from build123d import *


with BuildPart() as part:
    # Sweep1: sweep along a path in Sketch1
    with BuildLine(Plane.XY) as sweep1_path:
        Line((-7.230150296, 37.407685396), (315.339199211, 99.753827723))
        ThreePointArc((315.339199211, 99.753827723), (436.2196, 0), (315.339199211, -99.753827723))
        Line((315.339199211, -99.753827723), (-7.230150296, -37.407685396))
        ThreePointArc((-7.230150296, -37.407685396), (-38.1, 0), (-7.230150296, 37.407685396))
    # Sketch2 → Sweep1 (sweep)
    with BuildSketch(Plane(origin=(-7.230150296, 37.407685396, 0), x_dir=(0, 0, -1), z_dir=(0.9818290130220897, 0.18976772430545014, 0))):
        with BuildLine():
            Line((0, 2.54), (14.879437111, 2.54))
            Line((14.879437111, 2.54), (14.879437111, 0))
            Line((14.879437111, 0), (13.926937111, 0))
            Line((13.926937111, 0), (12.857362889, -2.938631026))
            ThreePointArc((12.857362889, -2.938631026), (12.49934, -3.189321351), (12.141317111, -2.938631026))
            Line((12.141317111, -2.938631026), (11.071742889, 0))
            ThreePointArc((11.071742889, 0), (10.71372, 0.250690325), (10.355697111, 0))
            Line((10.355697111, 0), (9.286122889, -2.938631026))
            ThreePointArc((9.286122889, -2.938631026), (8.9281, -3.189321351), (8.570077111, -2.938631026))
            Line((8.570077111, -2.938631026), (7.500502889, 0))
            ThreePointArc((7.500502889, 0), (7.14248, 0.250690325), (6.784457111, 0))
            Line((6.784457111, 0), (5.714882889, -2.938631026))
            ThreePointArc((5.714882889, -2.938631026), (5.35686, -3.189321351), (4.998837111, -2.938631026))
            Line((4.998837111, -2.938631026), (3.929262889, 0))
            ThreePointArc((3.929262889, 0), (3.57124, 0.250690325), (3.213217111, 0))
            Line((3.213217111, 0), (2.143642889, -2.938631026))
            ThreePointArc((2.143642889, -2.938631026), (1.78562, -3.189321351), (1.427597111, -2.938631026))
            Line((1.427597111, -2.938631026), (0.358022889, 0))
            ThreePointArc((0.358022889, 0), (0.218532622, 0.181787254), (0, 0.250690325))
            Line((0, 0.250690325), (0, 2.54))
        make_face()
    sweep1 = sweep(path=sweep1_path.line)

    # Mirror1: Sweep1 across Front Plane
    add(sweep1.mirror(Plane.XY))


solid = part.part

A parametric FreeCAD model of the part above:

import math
import FreeCAD as App
import Part
import Sketcher
from FreeCAD import Vector
Q = App.Units.Quantity

doc = App.newDocument("Part")
body = doc.addObject("PartDesign::Body", "Body")

# Sketch on an angled plane
sketch1 = body.newObject("Sketcher::SketchObject", "Sketch")
sketch1.Placement = App.Placement(Vector(-7.23015, 37.407685, 0), App.Rotation(Vector(0, 0, -1), Vector(-0.189767724, 0.981829013, 0), Vector(0.981829013, 0.189767724, 0), "ZXY"))
sketch1.addGeometry(Part.LineSegment(Vector(14.879437, 2.54, 0), Vector(0, 2.54, 0)), False)
sketch1.addGeometry(Part.LineSegment(Vector(0, 2.54, 0), Vector(0, 0.25069, 0)), False)
sketch1.addGeometry(Part.ArcOfCircle(Part.Circle(Vector(0, -0.13031, 0), Vector(0, 0, 1), 0.381), math.radians(20), math.radians(90)), False)
sketch1.addGeometry(Part.LineSegment(Vector(0.358023, 0, 0), Vector(1.427597, -2.938631, 0)), False)
sketch1.addGeometry(Part.ArcOfCircle(Part.Circle(Vector(1.78562, -2.808321, 0), Vector(0, 0, 1), 0.381), math.radians(-160), math.radians(-20)), False)
sketch1.addGeometry(Part.LineSegment(Vector(2.143643, -2.938631, 0), Vector(3.213217, 0, 0)), False)
sketch1.addGeometry(Part.ArcOfCircle(Part.Circle(Vector(3.57124, -0.13031, 0), Vector(0, 0, 1), 0.381), math.radians(20), math.radians(160)), False)
sketch1.addGeometry(Part.LineSegment(Vector(3.929263, 0, 0), Vector(4.998837, -2.938631, 0)), False)
sketch1.addGeometry(Part.ArcOfCircle(Part.Circle(Vector(5.35686, -2.808321, 0), Vector(0, 0, 1), 0.381), math.radians(-160), math.radians(-20)), False)
sketch1.addGeometry(Part.LineSegment(Vector(5.714883, -2.938631, 0), Vector(6.784457, 0, 0)), False)
sketch1.addGeometry(Part.ArcOfCircle(Part.Circle(Vector(7.14248, -0.13031, 0), Vector(0, 0, 1), 0.381), math.radians(20), math.radians(160)), False)
sketch1.addGeometry(Part.LineSegment(Vector(7.500503, 0, 0), Vector(8.570077, -2.938631, 0)), False)
sketch1.addGeometry(Part.ArcOfCircle(Part.Circle(Vector(8.9281, -2.808321, 0), Vector(0, 0, 1), 0.381), math.radians(-160), math.radians(-20)), False)
sketch1.addGeometry(Part.LineSegment(Vector(9.286123, -2.938631, 0), Vector(10.355697, 0, 0)), False)
sketch1.addGeometry(Part.ArcOfCircle(Part.Circle(Vector(10.71372, -0.13031, 0), Vector(0, 0, 1), 0.381), math.radians(20), math.radians(160)), False)
sketch1.addGeometry(Part.LineSegment(Vector(11.071743, 0, 0), Vector(12.141317, -2.938631, 0)), False)
sketch1.addGeometry(Part.ArcOfCircle(Part.Circle(Vector(12.49934, -2.808321, 0), Vector(0, 0, 1), 0.381), math.radians(-160), math.radians(-20)), False)
sketch1.addGeometry(Part.LineSegment(Vector(12.857363, -2.938631, 0), Vector(13.926937, 0, 0)), False)
sketch1.addGeometry(Part.LineSegment(Vector(13.926937, 0, 0), Vector(14.879437, 0, 0)), False)
sketch1.addGeometry(Part.LineSegment(Vector(14.879437, 0, 0), Vector(14.879437, 2.54, 0)), False)
sketch1.addConstraint(Sketcher.Constraint("Coincident", 0, 2, 1, 1))
sketch1.addConstraint(Sketcher.Constraint("Coincident", 1, 2, 2, 2))
sketch1.addConstraint(Sketcher.Constraint("Tangent", 2, 1, 3, 1))
sketch1.addConstraint(Sketcher.Constraint("Tangent", 3, 2, 4, 1))
sketch1.addConstraint(Sketcher.Constraint("Tangent", 4, 2, 5, 1))
sketch1.addConstraint(Sketcher.Constraint("Tangent", 5, 2, 6, 2))
sketch1.addConstraint(Sketcher.Constraint("Tangent", 6, 1, 7, 1))
sketch1.addConstraint(Sketcher.Constraint("Tangent", 7, 2, 8, 1))
sketch1.addConstraint(Sketcher.Constraint("Tangent", 8, 2, 9, 1))
sketch1.addConstraint(Sketcher.Constraint("Tangent", 9, 2, 10, 2))
sketch1.addConstraint(Sketcher.Constraint("Tangent", 10, 1, 11, 1))
sketch1.addConstraint(Sketcher.Constraint("Tangent", 11, 2, 12, 1))
sketch1.addConstraint(Sketcher.Constraint("Tangent", 12, 2, 13, 1))
sketch1.addConstraint(Sketcher.Constraint("Tangent", 13, 2, 14, 2))
sketch1.addConstraint(Sketcher.Constraint("Tangent", 14, 1, 15, 1))
sketch1.addConstraint(Sketcher.Constraint("Tangent", 15, 2, 16, 1))
sketch1.addConstraint(Sketcher.Constraint("Tangent", 16, 2, 17, 1))
sketch1.addConstraint(Sketcher.Constraint("Coincident", 17, 2, 18, 1))
sketch1.addConstraint(Sketcher.Constraint("Coincident", 18, 2, 19, 1))
sketch1.addConstraint(Sketcher.Constraint("Coincident", 19, 2, 0, 1))
sketch1.addConstraint(Sketcher.Constraint("Horizontal", 0))
sketch1.addConstraint(Sketcher.Constraint("Vertical", 1))
sketch1.addConstraint(Sketcher.Constraint("Horizontal", 18))
sketch1.addConstraint(Sketcher.Constraint("Vertical", 19))
sketch1.addConstraint(Sketcher.Constraint("Equal", 2, 4))
sketch1.addConstraint(Sketcher.Constraint("Equal", 4, 6))
sketch1.addConstraint(Sketcher.Constraint("Equal", 6, 8))
sketch1.addConstraint(Sketcher.Constraint("Equal", 8, 10))
sketch1.addConstraint(Sketcher.Constraint("Equal", 10, 12))
sketch1.addConstraint(Sketcher.Constraint("Equal", 12, 14))
sketch1.addConstraint(Sketcher.Constraint("Equal", 14, 16))
sketch1.addConstraint(Sketcher.Constraint("PointOnObject", 2, 3, -2))
sketch1.addConstraint(Sketcher.Constraint("PointOnObject", 0, 2, -2))
sketch1.addConstraint(Sketcher.Constraint("PointOnObject", 2, 1, -1))
sketch1.addConstraint(Sketcher.Constraint("PointOnObject", 5, 2, -1))
sketch1.addConstraint(Sketcher.Constraint("PointOnObject", 6, 1, -1))
sketch1.addConstraint(Sketcher.Constraint("PointOnObject", 9, 2, -1))
sketch1.addConstraint(Sketcher.Constraint("PointOnObject", 10, 1, -1))
sketch1.addConstraint(Sketcher.Constraint("PointOnObject", 13, 2, -1))
sketch1.addConstraint(Sketcher.Constraint("PointOnObject", 14, 1, -1))
sketch1.addConstraint(Sketcher.Constraint("PointOnObject", 17, 2, -1))
sketch1.addConstraint(Sketcher.Constraint("Parallel", 3, 7))
sketch1.addConstraint(Sketcher.Constraint("Parallel", 5, 9))
sketch1.addConstraint(Sketcher.Constraint("Parallel", 9, 13))
sketch1.addConstraint(Sketcher.Constraint("Parallel", 13, 17))
sketch1.addConstraint(Sketcher.Constraint("Horizontal", 4, 3, 8, 3))
sketch1.addConstraint(Sketcher.Constraint("Horizontal", 8, 3, 12, 3))
sketch1.addConstraint(Sketcher.Constraint("Horizontal", 12, 3, 16, 3))
sketch1.addConstraint(Sketcher.Constraint("DistanceY", 19, 1, 19, 2, Q("0.1 in")))
sketch1.addConstraint(Sketcher.Constraint("Angle", 3, Q("-70 deg")))
sketch1.addConstraint(Sketcher.Constraint("Radius", 2, Q("0.015 in")))
sketch1.addConstraint(Sketcher.Constraint("DistanceX", 18, 1, 18, 2, Q("0.0375 in")))
sketch1.addConstraint(Sketcher.Constraint("DistanceX", -1, 1, 4, 3, Q("0.0703 in")))

# Sketch on XY plane
sketch2 = body.newObject("Sketcher::SketchObject", "Sketch001")
sketch2.AttachmentSupport = (doc.getObject("XY_Plane"), [""])
sketch2.MapMode = "FlatFace"
sketch2.addGeometry(Part.LineSegment(Vector(-7.23015, 37.407685, 0), Vector(315.339199, 99.753828, 0)), False)
sketch2.addGeometry(Part.ArcOfCircle(Part.Circle(Vector(334.6196, 0, 0), Vector(0, 0, 1), 101.6), math.radians(-100.939229), math.radians(100.939229)), False)
sketch2.addGeometry(Part.LineSegment(Vector(315.339199, -99.753828, 0), Vector(-7.23015, -37.407685, 0)), False)
sketch2.addGeometry(Part.ArcOfCircle(Part.Circle(Vector(0, 0, 0), Vector(0, 0, 1), 38.1), math.radians(100.939229), math.radians(259.060771)), False)
sketch2.addConstraint(Sketcher.Constraint("Tangent", 0, 2, 1, 2))
sketch2.addConstraint(Sketcher.Constraint("Tangent", 1, 1, 2, 1))
sketch2.addConstraint(Sketcher.Constraint("Tangent", 2, 2, 3, 2))
sketch2.addConstraint(Sketcher.Constraint("Tangent", 3, 1, 0, 1))
sketch2.addConstraint(Sketcher.Constraint("Coincident", 3, 3, -1, 1))
sketch2.addConstraint(Sketcher.Constraint("PointOnObject", 1, 3, -1))
sketch2.addConstraint(Sketcher.Constraint("Radius", 1, Q("4 in")))
sketch2.addConstraint(Sketcher.Constraint("Radius", 3, Q("1.5 in")))
sketch2.addConstraint(Sketcher.Constraint("DistanceX", -1, 1, 1, 3, Q("13.174 in")))
doc.recompute()

additivepipe = body.newObject("PartDesign::AdditivePipe", "AdditivePipe")
additivepipe.Profile = sketch1
additivepipe.Spine = (sketch2, ["Edge1", "Edge2", "Edge3", "Edge4"])
doc.recompute()

mirrored = body.newObject("PartDesign::Mirrored", "Mirrored")
mirrored.Originals = [additivepipe]
mirrored.MirrorPlane = (doc.getObject("XY_Plane"), [""])
body.Tip = mirrored

doc.recompute()
